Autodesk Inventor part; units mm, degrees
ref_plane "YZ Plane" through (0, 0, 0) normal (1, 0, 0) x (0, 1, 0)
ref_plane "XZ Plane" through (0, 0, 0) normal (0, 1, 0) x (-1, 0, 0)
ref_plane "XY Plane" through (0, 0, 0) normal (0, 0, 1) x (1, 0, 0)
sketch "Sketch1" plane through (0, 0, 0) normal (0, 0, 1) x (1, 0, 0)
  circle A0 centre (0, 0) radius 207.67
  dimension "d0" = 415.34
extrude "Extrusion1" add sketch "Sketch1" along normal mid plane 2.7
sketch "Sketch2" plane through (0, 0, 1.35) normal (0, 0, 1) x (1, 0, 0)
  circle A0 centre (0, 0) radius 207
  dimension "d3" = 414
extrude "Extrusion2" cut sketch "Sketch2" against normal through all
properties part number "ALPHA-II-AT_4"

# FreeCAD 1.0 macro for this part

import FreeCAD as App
import Part
import Sketcher

doc = App.newDocument("Part")
body = doc.addObject("PartDesign::Body", "Body")

sketch1 = body.newObject("Sketcher::SketchObject", "Sketch")
sketch1.AttachmentSupport = (doc.getObject("XY_Plane"), [""])
sketch1.MapMode = "FlatFace"
sketch1.addGeometry(Part.Circle(App.Vector(0, 0, 0), App.Vector(0, 0, 1), 207.67), False)
sketch1.addConstraint(Sketcher.Constraint("Coincident", 0, 3, -1, 1))
sketch1.addConstraint(Sketcher.Constraint("Diameter", 0, 415.34))
pad1 = body.newObject("PartDesign::Pad", "Pad")
pad1.Profile = sketch1
pad1.Length = 2.7
pad1.Midplane = True

sketch2 = body.newObject("Sketcher::SketchObject", "Sketch001")
sketch2.AttachmentSupport = (doc.getObject("XY_Plane"), [""])
sketch2.MapMode = "FlatFace"
sketch2.AttachmentOffset = App.Placement(App.Vector(0, 0, 1.35), App.Rotation())
sketch2.addGeometry(Part.Circle(App.Vector(0, 0, 0), App.Vector(0, 0, 1), 207), False)
sketch2.addConstraint(Sketcher.Constraint("Coincident", 0, 3, -1, 1))
sketch2.addConstraint(Sketcher.Constraint("Diameter", 0, 414.0))
pocket1 = body.newObject("PartDesign::Pocket", "Pocket")
pocket1.Profile = sketch2
pocket1.Type = "ThroughAll"

doc.recompute()
